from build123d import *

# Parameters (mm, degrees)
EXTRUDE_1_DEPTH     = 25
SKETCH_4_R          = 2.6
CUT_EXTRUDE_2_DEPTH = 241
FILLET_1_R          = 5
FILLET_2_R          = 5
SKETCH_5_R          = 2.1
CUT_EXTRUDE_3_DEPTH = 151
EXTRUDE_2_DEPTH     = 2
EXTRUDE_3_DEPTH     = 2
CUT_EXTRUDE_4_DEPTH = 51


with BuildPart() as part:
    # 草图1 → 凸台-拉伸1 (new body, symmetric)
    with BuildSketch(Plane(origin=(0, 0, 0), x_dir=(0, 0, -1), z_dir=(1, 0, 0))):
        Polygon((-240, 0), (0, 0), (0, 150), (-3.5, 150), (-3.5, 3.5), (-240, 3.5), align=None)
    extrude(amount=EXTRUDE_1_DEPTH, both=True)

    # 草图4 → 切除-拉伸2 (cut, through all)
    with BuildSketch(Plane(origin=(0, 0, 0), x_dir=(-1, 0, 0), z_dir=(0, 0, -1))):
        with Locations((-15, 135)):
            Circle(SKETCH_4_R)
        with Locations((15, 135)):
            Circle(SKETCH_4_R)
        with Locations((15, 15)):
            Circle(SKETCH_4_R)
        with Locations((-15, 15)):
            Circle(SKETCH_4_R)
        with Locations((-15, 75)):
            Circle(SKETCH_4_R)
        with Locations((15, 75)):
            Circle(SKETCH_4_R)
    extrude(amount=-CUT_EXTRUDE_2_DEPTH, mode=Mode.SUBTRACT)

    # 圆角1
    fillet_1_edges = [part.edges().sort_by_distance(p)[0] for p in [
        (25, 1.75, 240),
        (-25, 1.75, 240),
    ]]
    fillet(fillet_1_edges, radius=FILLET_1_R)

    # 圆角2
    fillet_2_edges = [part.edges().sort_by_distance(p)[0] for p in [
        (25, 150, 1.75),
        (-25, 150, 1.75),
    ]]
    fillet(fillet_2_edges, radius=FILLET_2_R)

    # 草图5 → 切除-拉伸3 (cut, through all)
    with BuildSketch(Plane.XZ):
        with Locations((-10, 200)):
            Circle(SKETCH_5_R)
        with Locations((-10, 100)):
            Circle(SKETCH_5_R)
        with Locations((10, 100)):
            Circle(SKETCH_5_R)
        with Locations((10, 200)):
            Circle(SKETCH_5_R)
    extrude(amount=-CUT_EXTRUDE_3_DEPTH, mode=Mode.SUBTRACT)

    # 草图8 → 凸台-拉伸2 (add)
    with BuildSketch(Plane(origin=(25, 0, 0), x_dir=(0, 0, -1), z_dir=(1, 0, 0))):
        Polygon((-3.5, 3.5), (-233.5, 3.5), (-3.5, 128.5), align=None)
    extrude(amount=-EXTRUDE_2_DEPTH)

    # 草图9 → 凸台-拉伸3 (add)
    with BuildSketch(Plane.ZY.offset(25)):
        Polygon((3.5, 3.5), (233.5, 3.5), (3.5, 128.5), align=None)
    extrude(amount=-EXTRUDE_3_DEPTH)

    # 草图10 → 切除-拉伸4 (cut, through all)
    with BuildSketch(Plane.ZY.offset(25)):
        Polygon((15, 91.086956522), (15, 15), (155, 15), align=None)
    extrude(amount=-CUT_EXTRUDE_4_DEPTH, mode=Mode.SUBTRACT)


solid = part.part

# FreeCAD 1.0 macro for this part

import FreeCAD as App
import Part
import Sketcher

V = App.Vector


def edges_at(feature, points):
    """Names of the edges that pass closest to the given points."""
    edges = feature.Shape.Edges
    near = lambda p: min(range(len(edges)), key=lambda i: edges[i].distToShape(Part.Vertex(*p))[0])
    return sorted({f"Edge{near(p) + 1}" for p in points})


def add_polygon(sketch, points):
    """Adds a closed chain of lines whose ends are joined by coincident constraints."""
    first, n = sketch.GeometryCount, len(points)
    for a, b in zip(points, points[1:] + points[:1]):
        sketch.addGeometry(Part.LineSegment(App.Vector(*a, 0), App.Vector(*b, 0)), False)
    for i in range(n):
        sketch.addConstraint(Sketcher.Constraint("Coincident", first + i, 2, first + (i + 1) % n, 1))

doc = App.newDocument("Part")
body = doc.addObject("PartDesign::Body", "Body")

# Sketch on YZ plane
sketch1 = body.newObject("Sketcher::SketchObject", "Sketch")
sketch1.AttachmentSupport = (doc.getObject("YZ_Plane"), [""])
sketch1.MapMode = "FlatFace"
add_polygon(sketch1, [(0, 240), (0, 0), (150, 0), (150, 3.5), (3.5, 3.5), (3.5, 240)])  # lines 0-5
sketch1.addConstraint([
    Sketcher.Constraint("Vertical", 0),
    Sketcher.Constraint("Horizontal", 1),
    Sketcher.Constraint("Vertical", 2),
    Sketcher.Constraint("Horizontal", 3),
    Sketcher.Constraint("Vertical", 4),
    Sketcher.Constraint("Horizontal", 5),
    Sketcher.Constraint("Coincident", 0, 2, -1, 1),
    Sketcher.Constraint("Equal", 5, 2),
    Sketcher.Constraint("DistanceX", 1, 1, 1, 2, 150.0),
    Sketcher.Constraint("DistanceY", 0, 2, 0, 1, 240.0),
    Sketcher.Constraint("DistanceX", 3, 2, 3, 1, 146.5),
])
pad1 = body.newObject("PartDesign::Pad", "Pad")
pad1.Profile = sketch1
pad1.Length = 50
pad1.Midplane = True

# Sketch on XY plane
sketch2 = body.newObject("Sketcher::SketchObject", "Sketch001")
sketch2.AttachmentSupport = (doc.getObject("XY_Plane"), [""])
sketch2.MapMode = "FlatFace"
sketch2.addGeometry([
    Part.Circle(V(15, 135, 0), V(0, 0, 1), 2.6),  # 0
    Part.Circle(V(-15, 135, 0), V(0, 0, 1), 2.6),  # 1
    Part.Circle(V(-15, 15, 0), V(0, 0, 1), 2.6),  # 2
    Part.Circle(V(15, 15, 0), V(0, 0, 1), 2.6),  # 3
    Part.Circle(V(15, 75, 0), V(0, 0, 1), 2.6),  # 4
    Part.Circle(V(-15, 75, 0), V(0, 0, 1), 2.6),  # 5
], False)
sketch2.addConstraint([
    Sketcher.Constraint("Equal", 0, 1),
    Sketcher.Constraint("Equal", 1, 2),
    Sketcher.Constraint("Equal", 2, 3),
    Sketcher.Constraint("Equal", 3, 4),
    Sketcher.Constraint("Equal", 4, 5),
    Sketcher.Constraint("Symmetric", 0, 3, 1, 3, -2),
    Sketcher.Constraint("Symmetric", 2, 3, 3, 3, -2),
    Sketcher.Constraint("Symmetric", 4, 3, 5, 3, -2),
    Sketcher.Constraint("Vertical", 1, 3, 2, 3),
    Sketcher.Constraint("Vertical", 3, 3, 4, 3),
    Sketcher.Constraint("Diameter", 0, 5.2),
    Sketcher.Constraint("DistanceX", -1, 1, 0, 3, 15.0),
    Sketcher.Constraint("DistanceY", -1, 1, 0, 3, 135.0),
    Sketcher.Constraint("DistanceY", -1, 1, 2, 3, 15.0),
    Sketcher.Constraint("DistanceY", -1, 1, 4, 3, 75.0),
])
pocket1 = body.newObject("PartDesign::Pocket", "Pocket")
pocket1.Profile = sketch2
pocket1.Type = "ThroughAll"
pocket1.Reversed = True
doc.recompute()

fillet = body.newObject("PartDesign::Fillet", "Fillet")
fillet.Base = (pocket1, edges_at(pocket1, [(25, 1.75, 240), (-25, 1.75, 240)]))
fillet.Radius = 5
doc.recompute()

fillet2 = body.newObject("PartDesign::Fillet", "Fillet001")
fillet2.Base = (fillet, edges_at(fillet, [(25, 150, 1.75), (-25, 150, 1.75)]))
fillet2.Radius = 5

# Sketch on XZ plane
sketch3 = body.newObject("Sketcher::SketchObject", "Sketch002")
sketch3.AttachmentSupport = (doc.getObject("XZ_Plane"), [""])
sketch3.MapMode = "FlatFace"
sketch3.addGeometry([
    Part.Circle(V(-10, 200, 0), V(0, 0, 1), 2.1),
    Part.Circle(V(-10, 100, 0), V(0, 0, 1), 2.1),
    Part.Circle(V(10, 100, 0), V(0, 0, 1), 2.1),
    Part.Circle(V(10, 200, 0), V(0, 0, 1), 2.1),
], False)
sketch3.addConstraint([
    Sketcher.Constraint("Equal", 0, 1),
    Sketcher.Constraint("Equal", 1, 2),
    Sketcher.Constraint("Equal", 2, 3),
    Sketcher.Constraint("Symmetric", 1, 3, 2, 3, -2),
    Sketcher.Constraint("Symmetric", 0, 3, 3, 3, -2),
    Sketcher.Constraint("Vertical", 0, 3, 1, 3),
    Sketcher.Constraint("Diameter", 0, 4.2),
    Sketcher.Constraint("DistanceX", 0, 3, -1, 1, 10.0),
    Sketcher.Constraint("DistanceY", -1, 1, 0, 3, 200.0),
    Sketcher.Constraint("DistanceY", -1, 1, 1, 3, 100.0),
])
pocket2 = body.newObject("PartDesign::Pocket", "Pocket001")
pocket2.Profile = sketch3
pocket2.Type = "ThroughAll"

# Sketch on YZ plane
sketch4 = body.newObject("Sketcher::SketchObject", "Sketch003")
sketch4.AttachmentSupport = (doc.getObject("YZ_Plane"), [""])
sketch4.MapMode = "FlatFace"
sketch4.AttachmentOffset = App.Placement(V(0, 0, 25), App.Rotation())
add_polygon(sketch4, [(3.5, 233.5), (3.5, 3.5), (128.5, 3.5)])  # lines 0-2
sketch4.addConstraint([
    Sketcher.Constraint("Vertical", 0),
    Sketcher.Constraint("Horizontal", 1),
    Sketcher.Constraint("DistanceX", 1, 1, 1, 2, 125.0),
    Sketcher.Constraint("DistanceY", 0, 2, 0, 1, 230.0),
    Sketcher.Constraint("DistanceX", -1, 1, 0, 2, 3.5),
    Sketcher.Constraint("DistanceY", -1, 1, 0, 2, 3.5),
])
pad2 = body.newObject("PartDesign::Pad", "Pad001")
pad2.Profile = sketch4
pad2.Length = 2
pad2.Reversed = True

# Sketch on YZ plane
sketch5 = body.newObject("Sketcher::SketchObject", "Sketch004")
sketch5.AttachmentSupport = (doc.getObject("YZ_Plane"), [""])
sketch5.MapMode = "FlatFace"
sketch5.AttachmentOffset = App.Placement(V(0, 0, -25), App.Rotation())
add_polygon(sketch5, [(3.5, 3.5), (3.5, 233.5), (128.5, 3.5)])  # lines 0-2
sketch5.addConstraint([
    Sketcher.Constraint("Vertical", 0),
    Sketcher.Constraint("Horizontal", 2),
    Sketcher.Constraint("DistanceX", 2, 2, 2, 1, 125.0),
    Sketcher.Constraint("DistanceY", 0, 1, 0, 2, 230.0),
    Sketcher.Constraint("DistanceX", -1, 1, 0, 2, 3.5),
    Sketcher.Constraint("DistanceY", -1, 1, 0, 2, 233.5),
])
pad3 = body.newObject("PartDesign::Pad", "Pad002")
pad3.Profile = sketch5
pad3.Length = 2

# Sketch on YZ plane
sketch6 = body.newObject("Sketcher::SketchObject", "Sketch005")
sketch6.AttachmentSupport = (doc.getObject("YZ_Plane"), [""])
sketch6.MapMode = "FlatFace"
sketch6.AttachmentOffset = App.Placement(V(0, 0, -25), App.Rotation())
add_polygon(sketch6, [(91.086957, 15), (15, 15), (15, 155)])  # lines 0-2
sketch6.addConstraint([
    Sketcher.Constraint("Horizontal", 0),
    Sketcher.Constraint("Vertical", 1),
    Sketcher.Constraint("DistanceY", 1, 1, 1, 2, 140.0),
    Sketcher.Constraint("DistanceX", -1, 1, 0, 2, 15.0),
    Sketcher.Constraint("DistanceY", -1, 1, 0, 2, 15.0),
    Sketcher.Constraint("DistanceX", 0, 2, 0, 1, 76.086957),
])
pocket3 = body.newObject("PartDesign::Pocket", "Pocket002")
pocket3.Profile = sketch6
pocket3.Type = "ThroughAll"
pocket3.Reversed = True

doc.recompute()
